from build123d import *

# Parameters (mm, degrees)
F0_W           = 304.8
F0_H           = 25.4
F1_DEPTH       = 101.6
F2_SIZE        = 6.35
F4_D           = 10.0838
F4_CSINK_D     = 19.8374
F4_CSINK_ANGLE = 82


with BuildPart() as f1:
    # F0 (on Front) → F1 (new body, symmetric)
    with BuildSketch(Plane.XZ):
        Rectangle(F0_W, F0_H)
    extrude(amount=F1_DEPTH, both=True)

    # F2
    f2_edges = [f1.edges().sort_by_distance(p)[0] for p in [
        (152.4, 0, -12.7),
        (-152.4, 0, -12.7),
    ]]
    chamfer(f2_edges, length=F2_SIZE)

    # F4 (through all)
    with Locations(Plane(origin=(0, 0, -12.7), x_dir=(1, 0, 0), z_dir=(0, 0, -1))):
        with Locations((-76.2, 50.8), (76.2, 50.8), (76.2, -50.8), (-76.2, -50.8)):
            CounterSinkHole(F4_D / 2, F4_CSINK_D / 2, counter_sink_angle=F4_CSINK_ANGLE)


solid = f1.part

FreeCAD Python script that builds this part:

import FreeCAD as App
import Part
import Sketcher
Q = App.Units.Quantity


def edges_at(feature, points):
    """Names of the edges that pass closest to the given points."""
    edges = feature.Shape.Edges
    near = lambda p: min(range(len(edges)), key=lambda i: edges[i].distToShape(Part.Vertex(*p))[0])
    return sorted({f"Edge{near(p) + 1}" for p in points})

doc = App.newDocument("Part")
body = doc.addObject("PartDesign::Body", "Body")

# Sketch on XZ plane
sketch1 = body.newObject("Sketcher::SketchObject", "Sketch")
sketch1.AttachmentSupport = (doc.getObject("XZ_Plane"), [""])
sketch1.MapMode = "FlatFace"
sketch1.addGeometry([
    Part.LineSegment(App.Vector(-152, 13, 0), App.Vector(-152, -13, 0)),
    Part.LineSegment(App.Vector(-152, -13, 0), App.Vector(152, -13, 0)),
    Part.LineSegment(App.Vector(152, -13, 0), App.Vector(152, 13, 0)),
    Part.LineSegment(App.Vector(152, 13, 0), App.Vector(-152, 13, 0)),
], False)
sketch1.addConstraint([
    Sketcher.Constraint("Coincident", 0, 2, 1, 1),
    Sketcher.Constraint("Coincident", 1, 2, 2, 1),
    Sketcher.Constraint("Coincident", 2, 2, 3, 1),
    Sketcher.Constraint("Coincident", 3, 2, 0, 1),
    Sketcher.Constraint("Vertical", 0),
    Sketcher.Constraint("Horizontal", 1),
    Sketcher.Constraint("Vertical", 2),
    Sketcher.Constraint("Horizontal", 3),
    Sketcher.Constraint("Symmetric", 0, 2, 2, 2, -1, 1),
    Sketcher.Constraint("DistanceX", 1, 1, 1, 2, Q("12 in")),
    Sketcher.Constraint("DistanceY", 0, 2, 0, 1, Q("1 in")),
])
pad1 = body.newObject("PartDesign::Pad", "Pad")
pad1.Profile = sketch1
pad1.Length = Q("8 in")
pad1.Midplane = True
doc.recompute()

chamfer = body.newObject("PartDesign::Chamfer", "Chamfer")
chamfer.Base = (pad1, edges_at(pad1, [(152.4, 0, -12.7), (-152.4, 0, -12.7)]))
chamfer.Size = Q("0.25 in")

# Sketch on XY plane
sketch2 = body.newObject("Sketcher::SketchObject", "Sketch001")
sketch2.AttachmentSupport = (doc.getObject("XY_Plane"), [""])
sketch2.MapMode = "FlatFace"
sketch2.AttachmentOffset = App.Placement(App.Vector(0, 0, -0.5 * 25.4), App.Rotation())
sketch2.addGeometry([
    Part.Circle(App.Vector(-76, -51, 0), App.Vector(0, 0, 1), 5),
    Part.Circle(App.Vector(76, -51, 0), App.Vector(0, 0, 1), 5),
    Part.Circle(App.Vector(76, 51, 0), App.Vector(0, 0, 1), 5),
    Part.Circle(App.Vector(-76, 51, 0), App.Vector(0, 0, 1), 5),
], False)
sketch2.addConstraint([
    Sketcher.Constraint("Equal", 0, 1),
    Sketcher.Constraint("Equal", 1, 2),
    Sketcher.Constraint("Equal", 2, 3),
    Sketcher.Constraint("Symmetric", 0, 3, 2, 3, -1, 1),
    Sketcher.Constraint("Symmetric", 1, 3, 3, 3, -1, 1),
    Sketcher.Constraint("Symmetric", 0, 3, 1, 3, -2),
    Sketcher.Constraint("Diameter", 0, Q("0.397 in")),
    Sketcher.Constraint("DistanceX", 0, 3, -1, 1, Q("3 in")),
    Sketcher.Constraint("DistanceY", 0, 3, -1, 1, Q("2 in")),
])
doc.recompute()
hole = body.newObject("PartDesign::Hole", "Hole")
hole.Profile = sketch2
hole.ThreadType = "None"
hole.Diameter = Q("0.397 in")
hole.DepthType = "ThroughAll"
hole.HoleCutType = "Countersink"
hole.HoleCutDiameter = Q("0.781 in")
hole.HoleCutCountersinkAngle = 82
hole.Reversed = True

doc.recompute()
